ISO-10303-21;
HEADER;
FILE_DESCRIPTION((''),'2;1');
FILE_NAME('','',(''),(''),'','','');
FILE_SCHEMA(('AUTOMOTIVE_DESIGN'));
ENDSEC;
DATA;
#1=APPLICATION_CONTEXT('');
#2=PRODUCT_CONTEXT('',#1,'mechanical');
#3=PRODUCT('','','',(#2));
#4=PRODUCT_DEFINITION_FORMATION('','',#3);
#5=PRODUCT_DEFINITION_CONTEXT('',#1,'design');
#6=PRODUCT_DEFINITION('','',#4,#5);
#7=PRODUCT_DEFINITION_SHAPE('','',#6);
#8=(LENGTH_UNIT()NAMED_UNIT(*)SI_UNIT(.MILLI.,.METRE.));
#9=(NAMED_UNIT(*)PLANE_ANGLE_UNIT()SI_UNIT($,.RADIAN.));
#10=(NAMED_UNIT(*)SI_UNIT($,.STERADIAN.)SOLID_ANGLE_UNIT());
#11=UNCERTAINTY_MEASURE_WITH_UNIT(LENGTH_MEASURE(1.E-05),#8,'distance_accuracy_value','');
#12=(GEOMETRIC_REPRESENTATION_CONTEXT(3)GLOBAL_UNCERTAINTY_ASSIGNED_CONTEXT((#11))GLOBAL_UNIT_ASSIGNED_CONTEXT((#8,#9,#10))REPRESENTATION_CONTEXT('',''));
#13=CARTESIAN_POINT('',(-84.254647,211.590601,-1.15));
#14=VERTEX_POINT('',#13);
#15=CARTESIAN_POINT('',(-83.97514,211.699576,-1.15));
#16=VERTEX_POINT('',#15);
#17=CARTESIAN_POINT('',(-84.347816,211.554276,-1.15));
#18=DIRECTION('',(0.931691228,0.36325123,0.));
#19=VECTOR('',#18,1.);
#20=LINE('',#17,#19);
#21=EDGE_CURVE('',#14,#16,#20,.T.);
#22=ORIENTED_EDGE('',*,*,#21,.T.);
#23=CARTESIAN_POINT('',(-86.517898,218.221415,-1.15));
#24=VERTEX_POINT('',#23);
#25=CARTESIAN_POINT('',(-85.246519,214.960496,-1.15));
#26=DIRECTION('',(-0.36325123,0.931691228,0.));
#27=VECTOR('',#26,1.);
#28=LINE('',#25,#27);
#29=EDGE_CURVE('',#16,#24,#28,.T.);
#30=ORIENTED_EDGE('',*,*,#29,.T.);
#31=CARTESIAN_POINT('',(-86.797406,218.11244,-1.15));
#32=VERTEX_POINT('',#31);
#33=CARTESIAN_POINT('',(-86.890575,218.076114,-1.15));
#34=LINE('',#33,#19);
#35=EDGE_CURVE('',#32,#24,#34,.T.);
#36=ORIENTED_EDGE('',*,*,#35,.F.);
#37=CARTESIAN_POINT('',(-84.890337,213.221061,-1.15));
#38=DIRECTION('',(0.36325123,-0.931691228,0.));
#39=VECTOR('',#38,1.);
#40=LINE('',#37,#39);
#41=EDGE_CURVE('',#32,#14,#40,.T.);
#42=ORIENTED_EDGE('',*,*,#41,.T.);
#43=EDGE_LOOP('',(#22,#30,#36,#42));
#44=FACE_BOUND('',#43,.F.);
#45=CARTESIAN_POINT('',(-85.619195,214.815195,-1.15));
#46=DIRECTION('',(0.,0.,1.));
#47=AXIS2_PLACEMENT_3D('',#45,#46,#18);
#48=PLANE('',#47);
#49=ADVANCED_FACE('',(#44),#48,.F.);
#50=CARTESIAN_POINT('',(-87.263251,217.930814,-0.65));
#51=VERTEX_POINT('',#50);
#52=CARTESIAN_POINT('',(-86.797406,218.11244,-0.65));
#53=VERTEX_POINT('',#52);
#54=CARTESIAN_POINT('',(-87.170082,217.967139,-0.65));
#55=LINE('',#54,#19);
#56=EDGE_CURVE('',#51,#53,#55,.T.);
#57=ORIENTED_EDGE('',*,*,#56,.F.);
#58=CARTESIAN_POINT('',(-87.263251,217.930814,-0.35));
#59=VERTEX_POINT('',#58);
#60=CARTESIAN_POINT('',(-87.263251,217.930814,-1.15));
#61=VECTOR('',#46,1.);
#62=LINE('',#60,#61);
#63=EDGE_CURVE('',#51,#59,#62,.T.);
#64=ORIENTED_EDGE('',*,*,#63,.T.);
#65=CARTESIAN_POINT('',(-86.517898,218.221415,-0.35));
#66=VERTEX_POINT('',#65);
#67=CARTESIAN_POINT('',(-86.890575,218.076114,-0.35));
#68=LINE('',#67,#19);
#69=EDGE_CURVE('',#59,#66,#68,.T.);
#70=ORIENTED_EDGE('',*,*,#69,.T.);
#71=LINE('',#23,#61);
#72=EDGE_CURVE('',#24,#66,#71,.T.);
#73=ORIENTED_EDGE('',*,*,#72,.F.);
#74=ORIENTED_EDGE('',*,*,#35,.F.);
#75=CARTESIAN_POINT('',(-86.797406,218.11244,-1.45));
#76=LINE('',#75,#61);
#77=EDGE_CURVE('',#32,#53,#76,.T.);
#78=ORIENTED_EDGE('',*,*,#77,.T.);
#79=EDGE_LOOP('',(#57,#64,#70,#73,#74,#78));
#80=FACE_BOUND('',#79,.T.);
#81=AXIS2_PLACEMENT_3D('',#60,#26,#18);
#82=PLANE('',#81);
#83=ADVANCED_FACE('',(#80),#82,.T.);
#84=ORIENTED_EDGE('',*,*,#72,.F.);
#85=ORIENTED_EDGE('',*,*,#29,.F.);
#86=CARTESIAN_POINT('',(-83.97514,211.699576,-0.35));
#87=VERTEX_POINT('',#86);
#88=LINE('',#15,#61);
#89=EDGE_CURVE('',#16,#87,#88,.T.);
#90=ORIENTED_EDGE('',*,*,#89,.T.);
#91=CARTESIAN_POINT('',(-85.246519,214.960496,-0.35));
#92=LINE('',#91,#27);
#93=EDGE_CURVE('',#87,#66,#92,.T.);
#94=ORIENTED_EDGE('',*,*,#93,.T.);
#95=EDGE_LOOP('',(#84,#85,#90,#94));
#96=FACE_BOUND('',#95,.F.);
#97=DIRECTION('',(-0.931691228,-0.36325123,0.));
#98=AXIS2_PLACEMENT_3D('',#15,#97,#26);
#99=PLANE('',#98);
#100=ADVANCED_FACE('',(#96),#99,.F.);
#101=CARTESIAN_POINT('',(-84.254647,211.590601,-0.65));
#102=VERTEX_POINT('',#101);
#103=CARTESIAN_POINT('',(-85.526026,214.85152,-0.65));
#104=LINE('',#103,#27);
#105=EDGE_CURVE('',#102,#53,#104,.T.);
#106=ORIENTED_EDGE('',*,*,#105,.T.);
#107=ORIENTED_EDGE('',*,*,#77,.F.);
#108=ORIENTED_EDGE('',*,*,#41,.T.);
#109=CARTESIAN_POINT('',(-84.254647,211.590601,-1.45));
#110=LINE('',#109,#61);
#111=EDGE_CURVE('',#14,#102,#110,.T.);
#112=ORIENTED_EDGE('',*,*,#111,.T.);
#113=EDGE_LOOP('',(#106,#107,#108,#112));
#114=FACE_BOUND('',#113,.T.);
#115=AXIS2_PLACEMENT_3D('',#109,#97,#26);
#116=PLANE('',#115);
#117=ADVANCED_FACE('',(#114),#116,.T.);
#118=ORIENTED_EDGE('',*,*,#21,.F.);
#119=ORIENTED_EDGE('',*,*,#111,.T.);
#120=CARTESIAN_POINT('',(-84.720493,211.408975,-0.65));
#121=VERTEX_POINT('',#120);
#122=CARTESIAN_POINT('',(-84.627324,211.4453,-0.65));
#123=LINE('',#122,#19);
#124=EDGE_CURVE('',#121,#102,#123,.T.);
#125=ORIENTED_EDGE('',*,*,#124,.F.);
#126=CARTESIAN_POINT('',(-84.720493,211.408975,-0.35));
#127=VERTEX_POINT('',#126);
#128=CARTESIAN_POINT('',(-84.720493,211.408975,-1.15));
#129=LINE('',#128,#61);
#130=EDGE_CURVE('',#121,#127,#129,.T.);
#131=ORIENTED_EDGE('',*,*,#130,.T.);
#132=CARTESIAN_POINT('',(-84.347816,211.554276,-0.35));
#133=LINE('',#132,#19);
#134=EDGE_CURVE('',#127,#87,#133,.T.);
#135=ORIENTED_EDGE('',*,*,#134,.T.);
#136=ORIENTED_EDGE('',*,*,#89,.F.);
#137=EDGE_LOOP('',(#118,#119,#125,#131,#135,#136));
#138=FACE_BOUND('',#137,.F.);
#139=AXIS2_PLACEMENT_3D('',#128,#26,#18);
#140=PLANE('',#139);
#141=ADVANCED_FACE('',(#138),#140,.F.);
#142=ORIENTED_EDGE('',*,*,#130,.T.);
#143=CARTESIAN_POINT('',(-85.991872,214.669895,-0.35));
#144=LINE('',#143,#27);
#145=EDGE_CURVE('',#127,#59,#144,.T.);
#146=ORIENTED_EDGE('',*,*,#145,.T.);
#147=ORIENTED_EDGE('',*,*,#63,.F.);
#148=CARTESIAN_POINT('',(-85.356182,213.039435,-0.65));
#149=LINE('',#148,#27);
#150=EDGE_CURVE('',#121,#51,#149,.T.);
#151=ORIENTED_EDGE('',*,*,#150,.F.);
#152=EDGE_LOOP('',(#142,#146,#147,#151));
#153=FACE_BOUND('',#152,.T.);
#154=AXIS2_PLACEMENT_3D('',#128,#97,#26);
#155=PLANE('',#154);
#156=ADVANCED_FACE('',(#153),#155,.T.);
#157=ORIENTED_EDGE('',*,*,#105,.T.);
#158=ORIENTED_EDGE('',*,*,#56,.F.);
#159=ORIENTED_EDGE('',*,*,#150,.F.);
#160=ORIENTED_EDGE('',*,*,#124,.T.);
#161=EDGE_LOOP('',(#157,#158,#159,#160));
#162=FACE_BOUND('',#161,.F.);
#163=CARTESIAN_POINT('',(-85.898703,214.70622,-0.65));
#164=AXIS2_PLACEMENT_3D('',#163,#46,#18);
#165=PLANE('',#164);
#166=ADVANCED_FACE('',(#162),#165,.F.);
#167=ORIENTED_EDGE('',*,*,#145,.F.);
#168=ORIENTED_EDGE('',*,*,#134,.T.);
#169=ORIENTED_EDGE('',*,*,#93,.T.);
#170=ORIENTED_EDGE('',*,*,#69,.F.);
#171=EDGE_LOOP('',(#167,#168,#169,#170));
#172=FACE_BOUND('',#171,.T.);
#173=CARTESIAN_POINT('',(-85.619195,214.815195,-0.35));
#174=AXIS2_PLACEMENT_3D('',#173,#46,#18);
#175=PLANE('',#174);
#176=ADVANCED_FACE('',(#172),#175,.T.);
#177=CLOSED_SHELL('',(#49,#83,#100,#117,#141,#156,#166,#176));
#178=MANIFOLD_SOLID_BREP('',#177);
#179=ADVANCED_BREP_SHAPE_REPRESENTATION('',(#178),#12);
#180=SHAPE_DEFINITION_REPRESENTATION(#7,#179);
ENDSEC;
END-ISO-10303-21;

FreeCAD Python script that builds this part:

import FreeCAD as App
import Part
import Sketcher
from FreeCAD import Vector
Q = App.Units.Quantity

doc = App.newDocument("Part")
params = doc.addObject("Spreadsheet::Sheet", "Params")
for row, (alias, value) in enumerate([
    ("sketch1_height", "7 mm"),
    ("sketch1_width", "0.8 mm"),
    ("pad1_length", "0.8 mm"),
    ("sketch2_height", "7 mm"),
    ("sketch2_width", "0.8 mm"),
    ("pad2_length", "0.8 mm"),
], start=1):
    params.set(f"A{row}", alias)
    params.set(f"B{row}", "=" + value)
    params.setAlias(f"B{row}", alias)

body = doc.addObject("PartDesign::Body", "Body")

# Sketch on XY plane
sketch1 = body.newObject("Sketcher::SketchObject", "Sketch")
sketch1.AttachmentSupport = (doc.getObject("XY_Plane"), [""])
sketch1.MapMode = "FlatFace"
sketch1.addGeometry(Part.LineSegment(Vector(0, 7, 0), Vector(0, 0, 0)), False)
sketch1.addGeometry(Part.LineSegment(Vector(0, 0, 0), Vector(0.8, 0, 0)), False)
sketch1.addGeometry(Part.LineSegment(Vector(0.8, 0, 0), Vector(0.8, 7, 0)), False)
sketch1.addGeometry(Part.LineSegment(Vector(0.8, 7, 0), Vector(0, 7, 0)), False)
sketch1.addConstraint(Sketcher.Constraint("Coincident", 0, 2, 1, 1))
sketch1.addConstraint(Sketcher.Constraint("Coincident", 1, 2, 2, 1))
sketch1.addConstraint(Sketcher.Constraint("Coincident", 2, 2, 3, 1))
sketch1.addConstraint(Sketcher.Constraint("Coincident", 3, 2, 0, 1))
sketch1.addConstraint(Sketcher.Constraint("Vertical", 0))
sketch1.addConstraint(Sketcher.Constraint("Horizontal", 1))
sketch1.addConstraint(Sketcher.Constraint("Vertical", 2))
sketch1.addConstraint(Sketcher.Constraint("Horizontal", 3))
sketch1.addConstraint(Sketcher.Constraint("Coincident", 0, 2, -1, 1))
sketch1.addConstraint(Sketcher.Constraint("DistanceY", 0, 2, 0, 1, Q("7 mm")))
sketch1.addConstraint(Sketcher.Constraint("DistanceX", 1, 1, 1, 2, Q("0.8 mm")))
sketch1.setExpression("Constraints[9]", "Params.sketch1_height")
sketch1.setExpression("Constraints[10]", "Params.sketch1_width")
pad1 = body.newObject("PartDesign::Pad", "Pad")
pad1.Profile = sketch1
pad1.setExpression("Length", "Params.pad1_length")
body2 = doc.addObject("PartDesign::Body", "Body001")

# Sketch on XY plane
sketch2 = body2.newObject("Sketcher::SketchObject", "Sketch001")
sketch2.AttachmentSupport = (doc.getObject("XY_Plane001"), [""])
sketch2.MapMode = "FlatFace"
sketch2.AttachmentOffset = App.Placement(Vector(0, 0, 0.3), App.Rotation())
sketch2.addGeometry(Part.LineSegment(Vector(0.3, 7, 0), Vector(0.3, 0, 0)), False)
sketch2.addGeometry(Part.LineSegment(Vector(0.3, 0, 0), Vector(1.1, 0, 0)), False)
sketch2.addGeometry(Part.LineSegment(Vector(1.1, 0, 0), Vector(1.1, 7, 0)), False)
sketch2.addGeometry(Part.LineSegment(Vector(1.1, 7, 0), Vector(0.3, 7, 0)), False)
sketch2.addConstraint(Sketcher.Constraint("Coincident", 0, 2, 1, 1))
sketch2.addConstraint(Sketcher.Constraint("Coincident", 1, 2, 2, 1))
sketch2.addConstraint(Sketcher.Constraint("Coincident", 2, 2, 3, 1))
sketch2.addConstraint(Sketcher.Constraint("Coincident", 3, 2, 0, 1))
sketch2.addConstraint(Sketcher.Constraint("Vertical", 0))
sketch2.addConstraint(Sketcher.Constraint("Horizontal", 1))
sketch2.addConstraint(Sketcher.Constraint("Vertical", 2))
sketch2.addConstraint(Sketcher.Constraint("Horizontal", 3))
sketch2.addConstraint(Sketcher.Constraint("PointOnObject", 0, 2, -1))
sketch2.addConstraint(Sketcher.Constraint("DistanceY", 0, 2, 0, 1, Q("7 mm")))
sketch2.addConstraint(Sketcher.Constraint("DistanceX", 1, 1, 1, 2, Q("0.8 mm")))
sketch2.addConstraint(Sketcher.Constraint("DistanceX", -1, 1, 0, 2, Q("0.3 mm")))
sketch2.setExpression("Constraints[9]", "Params.sketch2_height")
sketch2.setExpression("Constraints[10]", "Params.sketch2_width")
pad2 = body2.newObject("PartDesign::Pad", "Pad001")
pad2.Profile = sketch2
pad2.setExpression("Length", "Params.pad2_length")
doc.recompute()

boolean = body2.newObject("PartDesign::Boolean", "Boolean")
boolean.Type = "Cut"
boolean.addObjects([body])
body3 = doc.addObject("PartDesign::Body", "Body002")
doc.recompute()

body2.Placement = App.Placement(Vector(-85, 211.3, -1.45), App.Rotation(Vector(0, 0, 1), 21.3))
boolean2 = body3.newObject("PartDesign::Boolean", "Boolean001")
boolean2.Type = "Fuse"
boolean2.addObjects([body2])

doc.recompute()
